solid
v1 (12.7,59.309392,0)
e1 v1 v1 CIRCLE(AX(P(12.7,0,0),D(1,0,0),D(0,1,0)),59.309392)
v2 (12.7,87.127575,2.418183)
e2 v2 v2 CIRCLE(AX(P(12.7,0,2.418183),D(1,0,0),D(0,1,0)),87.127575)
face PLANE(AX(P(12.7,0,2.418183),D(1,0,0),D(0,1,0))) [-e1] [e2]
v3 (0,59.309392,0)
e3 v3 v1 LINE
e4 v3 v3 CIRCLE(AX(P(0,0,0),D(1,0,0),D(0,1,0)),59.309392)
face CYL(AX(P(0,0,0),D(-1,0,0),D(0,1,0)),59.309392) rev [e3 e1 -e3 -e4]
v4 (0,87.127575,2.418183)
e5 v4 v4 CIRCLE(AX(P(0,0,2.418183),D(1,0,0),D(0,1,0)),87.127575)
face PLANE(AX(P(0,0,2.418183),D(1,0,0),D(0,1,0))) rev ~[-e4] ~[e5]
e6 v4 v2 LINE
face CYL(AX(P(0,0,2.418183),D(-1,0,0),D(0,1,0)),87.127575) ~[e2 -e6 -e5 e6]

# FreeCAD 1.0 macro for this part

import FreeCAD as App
import Part
import Sketcher

V = App.Vector
Q = App.Units.Quantity

doc = App.newDocument("Part")
body = doc.addObject("PartDesign::Body", "Body")

sketch1 = doc.addObject("Sketcher::SketchObject", "Sketch")
body.addObject(sketch1)
sketch1.AttachmentSupport = (doc.YZ_Plane, [""])
sketch1.MapMode = "FlatFace"
sketch1.addGeometry([
    Part.Circle(V(0, 2.418183, 0), V(0, 0, 1), 87.127575),
    Part.Circle(V(0, 0, 0), V(0, 0, 1), 59.309392),
], False)
sketch1.addConstraint([
    Sketcher.Constraint("Coincident", 1, 3, -1, 1),
    Sketcher.Constraint("PointOnObject", 0, 3, -2),
    Sketcher.Constraint("Diameter", 0, 174.25515),
    Sketcher.Constraint("Diameter", 1, 118.618784),
    Sketcher.Constraint("DistanceY", -1, 1, 0, 3, 2.418183),
])
pad1 = doc.addObject("PartDesign::Pad", "Pad")
body.addObject(pad1)
pad1.Profile = sketch1
pad1.Length = Q("0.5 in")

doc.recompute()
